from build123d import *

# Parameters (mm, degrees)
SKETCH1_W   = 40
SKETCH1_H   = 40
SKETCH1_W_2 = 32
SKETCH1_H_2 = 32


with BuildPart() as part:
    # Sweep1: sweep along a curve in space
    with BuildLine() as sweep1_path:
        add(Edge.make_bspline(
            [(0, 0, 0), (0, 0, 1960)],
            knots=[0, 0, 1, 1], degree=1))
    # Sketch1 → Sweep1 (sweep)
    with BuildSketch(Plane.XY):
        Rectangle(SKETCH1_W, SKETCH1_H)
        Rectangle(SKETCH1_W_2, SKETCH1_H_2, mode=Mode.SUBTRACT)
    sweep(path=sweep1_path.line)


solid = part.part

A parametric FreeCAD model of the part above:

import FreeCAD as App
import Part
import Sketcher

V = App.Vector


def add_polygon(sketch, points):
    """Adds a closed chain of lines whose ends are joined by coincident constraints."""
    first, n = sketch.GeometryCount, len(points)
    for a, b in zip(points, points[1:] + points[:1]):
        sketch.addGeometry(Part.LineSegment(App.Vector(*a, 0), App.Vector(*b, 0)), False)
    for i in range(n):
        sketch.addConstraint(Sketcher.Constraint("Coincident", first + i, 2, first + (i + 1) % n, 1))

doc = App.newDocument("Part")
body = doc.addObject("PartDesign::Body", "Body")

sketch1 = doc.addObject("Sketcher::SketchObject", "Sketch")
body.addObject(sketch1)
sketch1.AttachmentSupport = (doc.XY_Plane, [""])
sketch1.MapMode = "FlatFace"
add_polygon(sketch1, [(-20, 20), (-20, -20), (20, -20), (20, 20)])
add_polygon(sketch1, [(16, -16), (-16, -16), (-16, 16), (16, 16)])
sketch1.addConstraint([
    Sketcher.Constraint("Vertical", 0),
    Sketcher.Constraint("Horizontal", 1),
    Sketcher.Constraint("Vertical", 2),
    Sketcher.Constraint("Horizontal", 3),
    Sketcher.Constraint("Horizontal", 4),
    Sketcher.Constraint("Vertical", 5),
    Sketcher.Constraint("Horizontal", 6),
    Sketcher.Constraint("Vertical", 7),
    Sketcher.Constraint("Symmetric", 0, 2, 2, 2, -1, 1),
    Sketcher.Constraint("Symmetric", 4, 2, 6, 2, -1, 1),
    Sketcher.Constraint("Equal", 3, 0),
    Sketcher.Constraint("Equal", 6, 5),
    Sketcher.Constraint("DistanceX", 1, 1, 1, 2, 40.0),
    Sketcher.Constraint("DistanceX", 4, 2, 4, 1, 32.0),
])

sketch2 = doc.addObject("Sketcher::SketchObject", "Sketch001")
body.addObject(sketch2)
sketch2.AttachmentSupport = (doc.XZ_Plane, [""])
sketch2.MapMode = "FlatFace"
sketch2.addGeometry(Part.BSplineCurve([V(0, 0, 0), V(0, 1960, 0)], [2, 2], [0, 1], False, 1, [1, 1], False), False)
sketch2.addConstraint(Sketcher.Constraint("Block", 0))
doc.recompute()

additivepipe = doc.addObject("PartDesign::AdditivePipe", "AdditivePipe")
body.addObject(additivepipe)
additivepipe.Profile = sketch1
additivepipe.Spine = (sketch2, ["Edge1"])

doc.recompute()
